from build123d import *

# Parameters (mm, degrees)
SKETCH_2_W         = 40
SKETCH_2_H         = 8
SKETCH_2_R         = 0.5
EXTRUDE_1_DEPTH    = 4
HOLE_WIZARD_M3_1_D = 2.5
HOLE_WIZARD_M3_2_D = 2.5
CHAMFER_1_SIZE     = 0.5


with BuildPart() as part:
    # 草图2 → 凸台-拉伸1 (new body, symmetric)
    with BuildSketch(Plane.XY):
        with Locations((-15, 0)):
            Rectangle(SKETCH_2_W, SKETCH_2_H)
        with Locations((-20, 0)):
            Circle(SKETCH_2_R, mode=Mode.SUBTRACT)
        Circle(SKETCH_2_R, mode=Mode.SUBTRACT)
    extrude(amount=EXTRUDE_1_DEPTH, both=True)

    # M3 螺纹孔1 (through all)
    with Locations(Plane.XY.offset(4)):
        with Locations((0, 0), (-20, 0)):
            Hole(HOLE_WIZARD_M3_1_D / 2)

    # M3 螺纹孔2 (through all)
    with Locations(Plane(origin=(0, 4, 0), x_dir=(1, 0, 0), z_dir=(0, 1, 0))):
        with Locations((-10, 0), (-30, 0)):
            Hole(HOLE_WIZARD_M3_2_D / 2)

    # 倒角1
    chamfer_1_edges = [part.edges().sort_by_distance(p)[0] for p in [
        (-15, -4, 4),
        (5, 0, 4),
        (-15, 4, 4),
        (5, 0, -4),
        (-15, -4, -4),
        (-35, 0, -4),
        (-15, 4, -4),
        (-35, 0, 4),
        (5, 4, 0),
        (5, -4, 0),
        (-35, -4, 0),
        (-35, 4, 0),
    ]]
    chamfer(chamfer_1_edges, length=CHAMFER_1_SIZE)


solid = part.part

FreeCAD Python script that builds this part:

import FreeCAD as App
import Part
import Sketcher
from FreeCAD import Vector


def edges_at(feature, points):
    """Names of the edges that pass closest to the given points."""
    edges = feature.Shape.Edges
    near = lambda p: min(range(len(edges)), key=lambda i: edges[i].distToShape(Part.Vertex(*p))[0])
    return sorted({f"Edge{near(p) + 1}" for p in points})


def add_polygon(sketch, points):
    """Adds a closed chain of lines whose ends are joined by coincident constraints."""
    first, n = sketch.GeometryCount, len(points)
    for a, b in zip(points, points[1:] + points[:1]):
        sketch.addGeometry(Part.LineSegment(App.Vector(*a, 0), App.Vector(*b, 0)), False)
    for i in range(n):
        sketch.addConstraint(Sketcher.Constraint("Coincident", first + i, 2, first + (i + 1) % n, 1))

doc = App.newDocument("Part")
params = doc.addObject("Spreadsheet::Sheet", "Params")
for row, (alias, value) in enumerate([
    ("sketch1_diameter", "1 mm"),
    ("sketch1_width", "40 mm"),
    ("sketch1_height", "8 mm"),
    ("pad1_length", "8 mm"),
    ("sketch2_diameter", "2.5 mm"),
    ("hole_diameter", "2.5 mm"),
    ("sketch3_diameter", "2.5 mm"),
    ("hole2_diameter", "2.5 mm"),
    ("chamfer_size", "0.5 mm"),
], start=1):
    params.set(f"A{row}", alias)
    params.set(f"B{row}", "=" + value)
    params.setAlias(f"B{row}", alias)

body = doc.addObject("PartDesign::Body", "Body")

sketch1 = doc.addObject("Sketcher::SketchObject", "Sketch")
body.addObject(sketch1)
sketch1.AttachmentSupport = (doc.XY_Plane, [""])
sketch1.MapMode = "FlatFace"
add_polygon(sketch1, [(-35, 4), (-35, -4), (5, -4), (5, 4)])
sketch1.addGeometry(Part.Circle(Vector(-20, 0, 0), Vector(0, 0, 1), 0.5), False)
sketch1.addGeometry(Part.Circle(Vector(0, 0, 0), Vector(0, 0, 1), 0.5), False)
sketch1.addConstraint([
    Sketcher.Constraint("Vertical", 0),
    Sketcher.Constraint("Horizontal", 1),
    Sketcher.Constraint("Vertical", 2),
    Sketcher.Constraint("Horizontal", 3),
    Sketcher.Constraint("Coincident", 5, 3, -1, 1),
    Sketcher.Constraint("Equal", 4, 5),
    Sketcher.Constraint("PointOnObject", 4, 3, -1),
    Sketcher.Constraint("Diameter", 4, 1.0),
    Sketcher.Constraint("DistanceX", 1, 1, 1, 2, 40.0),
    Sketcher.Constraint("DistanceY", 0, 2, 0, 1, 8.0),
    Sketcher.Constraint("DistanceX", 4, 3, -1, 1, 20.0),
    Sketcher.Constraint("DistanceX", 0, 2, -1, 1, 35.0),
    Sketcher.Constraint("DistanceY", 0, 2, -1, 1, 4.0),
])
sketch1.setExpression("Constraints[11]", "Params.sketch1_diameter")
sketch1.setExpression("Constraints[12]", "Params.sketch1_width")
sketch1.setExpression("Constraints[13]", "Params.sketch1_height")
pad1 = doc.addObject("PartDesign::Pad", "Pad")
body.addObject(pad1)
pad1.Profile = sketch1
pad1.setExpression("Length", "Params.pad1_length")
pad1.Midplane = True

sketch2 = doc.addObject("Sketcher::SketchObject", "Sketch001")
body.addObject(sketch2)
sketch2.AttachmentSupport = (doc.XY_Plane, [""])
sketch2.MapMode = "FlatFace"
sketch2.AttachmentOffset = App.Placement(Vector(0, 0, 4), App.Rotation())
sketch2.addGeometry([
    Part.Circle(Vector(0, 0, 0), Vector(0, 0, 1), 1.25),
    Part.Circle(Vector(-20, 0, 0), Vector(0, 0, 1), 1.25),
], False)
sketch2.addConstraint([
    Sketcher.Constraint("Coincident", 0, 3, -1, 1),
    Sketcher.Constraint("Equal", 0, 1),
    Sketcher.Constraint("PointOnObject", 1, 3, -1),
    Sketcher.Constraint("Diameter", 0, 2.5),
    Sketcher.Constraint("DistanceX", 1, 3, -1, 1, 20.0),
])
sketch2.setExpression("Constraints[3]", "Params.sketch2_diameter")
doc.recompute()
hole = doc.addObject("PartDesign::Hole", "Hole")
body.addObject(hole)
hole.Profile = sketch2
hole.ThreadType = "None"
hole.setExpression("Diameter", "Params.hole_diameter")
hole.DepthType = "ThroughAll"

sketch3 = doc.addObject("Sketcher::SketchObject", "Sketch002")
body.addObject(sketch3)
sketch3.AttachmentSupport = (doc.XZ_Plane, [""])
sketch3.MapMode = "FlatFace"
sketch3.AttachmentOffset = App.Placement(Vector(0, 0, -4), App.Rotation())
sketch3.addGeometry([
    Part.Circle(Vector(-10, 0, 0), Vector(0, 0, 1), 1.25),
    Part.Circle(Vector(-30, 0, 0), Vector(0, 0, 1), 1.25),
], False)
sketch3.addConstraint([
    Sketcher.Constraint("Equal", 0, 1),
    Sketcher.Constraint("PointOnObject", 0, 3, -1),
    Sketcher.Constraint("PointOnObject", 1, 3, -1),
    Sketcher.Constraint("Diameter", 0, 2.5),
    Sketcher.Constraint("DistanceX", 0, 3, -1, 1, 10.0),
    Sketcher.Constraint("DistanceX", 1, 3, -1, 1, 30.0),
])
sketch3.setExpression("Constraints[3]", "Params.sketch3_diameter")
doc.recompute()
hole2 = doc.addObject("PartDesign::Hole", "Hole001")
body.addObject(hole2)
hole2.Profile = sketch3
hole2.ThreadType = "None"
hole2.setExpression("Diameter", "Params.hole2_diameter")
hole2.DepthType = "ThroughAll"
hole2.Reversed = True
doc.recompute()

chamfer = doc.addObject("PartDesign::Chamfer", "Chamfer")
body.addObject(chamfer)
chamfer.Base = (hole2, edges_at(hole2, [
    (-15, -4, 4),
    (5, 0, 4),
    (-15, 4, 4),
    (5, 0, -4),
    (-15, -4, -4),
    (-35, 0, -4),
    (-15, 4, -4),
    (-35, 0, 4),
    (5, 4, 0),
    (5, -4, 0),
    (-35, -4, 0),
    (-35, 4, 0),
]))
chamfer.setExpression("Size", "Params.chamfer_size")

doc.recompute()
